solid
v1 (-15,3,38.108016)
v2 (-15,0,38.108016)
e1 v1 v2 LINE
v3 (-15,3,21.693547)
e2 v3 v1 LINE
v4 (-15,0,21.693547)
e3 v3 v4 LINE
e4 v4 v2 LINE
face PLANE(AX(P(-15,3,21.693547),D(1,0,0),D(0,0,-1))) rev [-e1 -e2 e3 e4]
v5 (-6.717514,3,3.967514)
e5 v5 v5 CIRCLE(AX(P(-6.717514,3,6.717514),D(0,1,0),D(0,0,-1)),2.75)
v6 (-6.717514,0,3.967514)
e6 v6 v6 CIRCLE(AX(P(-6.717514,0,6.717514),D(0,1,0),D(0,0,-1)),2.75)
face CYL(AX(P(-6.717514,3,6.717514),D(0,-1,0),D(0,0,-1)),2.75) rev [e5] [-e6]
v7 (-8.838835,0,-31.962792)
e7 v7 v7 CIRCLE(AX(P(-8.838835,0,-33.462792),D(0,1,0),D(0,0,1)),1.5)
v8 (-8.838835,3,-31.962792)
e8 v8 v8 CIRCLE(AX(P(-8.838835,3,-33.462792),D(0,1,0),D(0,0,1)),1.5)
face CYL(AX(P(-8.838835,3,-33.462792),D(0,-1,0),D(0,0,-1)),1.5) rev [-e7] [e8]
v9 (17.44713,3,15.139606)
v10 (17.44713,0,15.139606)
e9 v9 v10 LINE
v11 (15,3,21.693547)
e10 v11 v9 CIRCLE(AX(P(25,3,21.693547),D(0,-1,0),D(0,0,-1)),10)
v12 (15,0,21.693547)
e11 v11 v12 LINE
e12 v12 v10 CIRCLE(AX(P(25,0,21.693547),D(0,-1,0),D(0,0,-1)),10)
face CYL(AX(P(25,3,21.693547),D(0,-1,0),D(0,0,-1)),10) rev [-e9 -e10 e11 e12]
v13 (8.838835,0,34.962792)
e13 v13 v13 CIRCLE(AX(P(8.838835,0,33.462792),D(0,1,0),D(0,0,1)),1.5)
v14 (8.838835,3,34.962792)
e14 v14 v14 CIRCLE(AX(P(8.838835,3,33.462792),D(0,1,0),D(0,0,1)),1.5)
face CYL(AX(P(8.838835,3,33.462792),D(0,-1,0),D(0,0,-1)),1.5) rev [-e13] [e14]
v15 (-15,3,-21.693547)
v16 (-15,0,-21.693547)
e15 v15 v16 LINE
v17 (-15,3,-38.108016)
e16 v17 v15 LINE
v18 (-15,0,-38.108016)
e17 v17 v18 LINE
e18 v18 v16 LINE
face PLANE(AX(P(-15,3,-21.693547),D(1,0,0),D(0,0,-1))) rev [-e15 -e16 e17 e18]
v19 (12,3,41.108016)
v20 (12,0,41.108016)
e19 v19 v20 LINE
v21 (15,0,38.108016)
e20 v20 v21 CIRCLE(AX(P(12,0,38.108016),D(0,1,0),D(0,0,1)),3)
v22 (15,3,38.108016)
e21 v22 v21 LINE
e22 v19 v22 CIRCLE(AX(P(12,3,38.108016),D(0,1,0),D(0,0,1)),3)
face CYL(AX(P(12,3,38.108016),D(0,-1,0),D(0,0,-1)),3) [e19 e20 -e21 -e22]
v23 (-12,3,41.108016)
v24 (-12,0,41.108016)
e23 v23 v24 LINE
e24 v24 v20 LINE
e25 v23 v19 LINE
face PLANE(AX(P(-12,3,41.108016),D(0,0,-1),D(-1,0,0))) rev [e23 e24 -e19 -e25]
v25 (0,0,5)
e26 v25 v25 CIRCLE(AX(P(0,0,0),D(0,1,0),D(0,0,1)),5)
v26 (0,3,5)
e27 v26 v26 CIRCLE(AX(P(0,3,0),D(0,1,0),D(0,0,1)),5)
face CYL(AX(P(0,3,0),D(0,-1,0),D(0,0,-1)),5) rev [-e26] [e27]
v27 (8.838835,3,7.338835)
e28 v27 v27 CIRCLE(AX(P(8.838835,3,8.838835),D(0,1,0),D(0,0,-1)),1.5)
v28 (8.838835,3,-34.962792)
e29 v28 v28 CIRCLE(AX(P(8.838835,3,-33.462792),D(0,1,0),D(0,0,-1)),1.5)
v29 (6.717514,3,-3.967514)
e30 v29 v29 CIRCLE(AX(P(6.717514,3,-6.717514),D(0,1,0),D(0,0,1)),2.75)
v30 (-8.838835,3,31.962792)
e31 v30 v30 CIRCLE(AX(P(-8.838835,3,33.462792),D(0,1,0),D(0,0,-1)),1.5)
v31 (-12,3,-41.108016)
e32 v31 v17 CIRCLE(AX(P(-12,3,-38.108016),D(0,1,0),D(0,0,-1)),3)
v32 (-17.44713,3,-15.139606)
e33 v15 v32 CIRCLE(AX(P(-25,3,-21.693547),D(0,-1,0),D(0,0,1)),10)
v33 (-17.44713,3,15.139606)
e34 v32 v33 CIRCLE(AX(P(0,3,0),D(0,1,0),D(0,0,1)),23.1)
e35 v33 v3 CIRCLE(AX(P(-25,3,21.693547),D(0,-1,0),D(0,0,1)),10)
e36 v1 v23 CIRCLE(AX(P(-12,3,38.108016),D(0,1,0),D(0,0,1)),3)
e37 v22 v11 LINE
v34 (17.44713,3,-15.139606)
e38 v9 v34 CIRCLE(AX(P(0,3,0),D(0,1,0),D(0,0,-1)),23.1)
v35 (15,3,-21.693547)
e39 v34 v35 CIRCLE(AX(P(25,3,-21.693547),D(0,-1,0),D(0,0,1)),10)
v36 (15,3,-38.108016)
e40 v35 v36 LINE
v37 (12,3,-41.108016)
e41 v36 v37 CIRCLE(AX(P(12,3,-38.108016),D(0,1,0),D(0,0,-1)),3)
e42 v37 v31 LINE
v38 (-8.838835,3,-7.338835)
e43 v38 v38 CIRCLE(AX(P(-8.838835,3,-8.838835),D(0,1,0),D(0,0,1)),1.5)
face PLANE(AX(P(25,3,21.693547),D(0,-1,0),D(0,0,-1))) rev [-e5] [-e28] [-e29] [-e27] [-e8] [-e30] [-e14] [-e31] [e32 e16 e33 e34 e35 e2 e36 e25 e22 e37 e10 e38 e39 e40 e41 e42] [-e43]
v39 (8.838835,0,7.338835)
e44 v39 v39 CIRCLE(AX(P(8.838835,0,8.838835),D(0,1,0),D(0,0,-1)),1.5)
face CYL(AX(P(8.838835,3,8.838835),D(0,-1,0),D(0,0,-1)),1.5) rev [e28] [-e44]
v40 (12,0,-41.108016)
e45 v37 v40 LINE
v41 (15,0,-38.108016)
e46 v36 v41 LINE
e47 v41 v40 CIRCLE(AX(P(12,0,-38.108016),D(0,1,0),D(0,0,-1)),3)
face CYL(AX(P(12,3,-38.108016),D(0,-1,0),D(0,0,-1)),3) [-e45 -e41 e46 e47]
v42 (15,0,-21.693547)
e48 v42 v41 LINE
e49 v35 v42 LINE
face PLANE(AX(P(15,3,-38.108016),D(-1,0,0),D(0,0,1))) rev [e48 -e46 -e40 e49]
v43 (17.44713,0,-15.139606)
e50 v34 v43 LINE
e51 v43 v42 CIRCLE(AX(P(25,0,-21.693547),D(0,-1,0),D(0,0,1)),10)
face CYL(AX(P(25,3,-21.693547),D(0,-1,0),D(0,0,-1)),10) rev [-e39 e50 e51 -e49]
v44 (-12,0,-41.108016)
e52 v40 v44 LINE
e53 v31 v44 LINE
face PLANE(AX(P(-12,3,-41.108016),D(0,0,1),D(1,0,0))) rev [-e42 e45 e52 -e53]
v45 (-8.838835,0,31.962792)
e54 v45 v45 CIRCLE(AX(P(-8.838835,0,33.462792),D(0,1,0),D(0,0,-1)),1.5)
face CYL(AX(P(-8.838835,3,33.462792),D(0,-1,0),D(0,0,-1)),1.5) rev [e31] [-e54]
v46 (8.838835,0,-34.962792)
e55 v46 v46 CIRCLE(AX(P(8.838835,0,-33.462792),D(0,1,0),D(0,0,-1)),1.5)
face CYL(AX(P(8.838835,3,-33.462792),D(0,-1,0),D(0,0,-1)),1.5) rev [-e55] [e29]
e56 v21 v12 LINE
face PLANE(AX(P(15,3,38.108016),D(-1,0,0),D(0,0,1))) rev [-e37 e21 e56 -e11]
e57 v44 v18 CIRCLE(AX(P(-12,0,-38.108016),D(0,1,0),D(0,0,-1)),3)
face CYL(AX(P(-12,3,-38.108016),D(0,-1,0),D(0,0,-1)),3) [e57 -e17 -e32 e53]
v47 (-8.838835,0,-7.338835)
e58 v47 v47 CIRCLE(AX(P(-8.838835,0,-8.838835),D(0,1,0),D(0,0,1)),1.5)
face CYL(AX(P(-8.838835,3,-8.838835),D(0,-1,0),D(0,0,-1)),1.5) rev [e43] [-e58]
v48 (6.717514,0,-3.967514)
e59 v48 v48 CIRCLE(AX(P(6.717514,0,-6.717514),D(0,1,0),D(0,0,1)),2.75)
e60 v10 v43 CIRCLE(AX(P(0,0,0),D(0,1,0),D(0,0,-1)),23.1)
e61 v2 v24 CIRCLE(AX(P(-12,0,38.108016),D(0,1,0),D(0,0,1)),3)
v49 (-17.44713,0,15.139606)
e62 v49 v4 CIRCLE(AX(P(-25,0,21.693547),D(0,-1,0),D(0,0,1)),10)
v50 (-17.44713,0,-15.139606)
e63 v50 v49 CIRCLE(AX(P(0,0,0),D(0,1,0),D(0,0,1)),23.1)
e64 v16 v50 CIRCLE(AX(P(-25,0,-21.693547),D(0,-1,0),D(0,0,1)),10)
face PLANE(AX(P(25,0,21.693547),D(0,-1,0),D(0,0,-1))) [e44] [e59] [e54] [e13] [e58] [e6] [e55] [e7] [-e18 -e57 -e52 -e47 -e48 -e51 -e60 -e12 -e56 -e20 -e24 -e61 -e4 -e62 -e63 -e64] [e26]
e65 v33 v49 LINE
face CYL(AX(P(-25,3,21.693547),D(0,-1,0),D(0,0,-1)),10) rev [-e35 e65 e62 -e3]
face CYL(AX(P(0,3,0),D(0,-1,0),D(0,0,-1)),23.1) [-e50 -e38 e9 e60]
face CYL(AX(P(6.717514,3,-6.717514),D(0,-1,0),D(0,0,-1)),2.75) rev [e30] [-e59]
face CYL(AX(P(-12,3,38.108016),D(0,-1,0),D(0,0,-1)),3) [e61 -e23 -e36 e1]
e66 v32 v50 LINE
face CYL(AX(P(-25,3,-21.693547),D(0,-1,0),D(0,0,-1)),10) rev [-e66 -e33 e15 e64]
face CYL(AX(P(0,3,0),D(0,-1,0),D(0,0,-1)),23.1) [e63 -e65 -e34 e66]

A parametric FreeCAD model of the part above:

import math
import FreeCAD as App
import Part
import Sketcher
from FreeCAD import Vector
Q = App.Units.Quantity

doc = App.newDocument("Part")
body = doc.addObject("PartDesign::Body", "Body")

# Sketch on XZ plane
sketch1 = body.newObject("Sketcher::SketchObject", "Sketch")
sketch1.AttachmentSupport = (doc.getObject("XZ_Plane"), [""])
sketch1.MapMode = "FlatFace"
sketch1.addGeometry(Part.LineSegment(Vector(-15, -38.1, 0), Vector(-15, -21.7, 0)), False)
sketch1.addGeometry(Part.ArcOfCircle(Part.Circle(Vector(-25, -21.7, 0), Vector(0, 0, 1), 10), math.radians(0), math.radians(41)), False)
sketch1.addGeometry(Part.ArcOfCircle(Part.Circle(Vector(0, 0, 0), Vector(0, 0, 1), 23.1), math.radians(139), math.radians(221)), False)
sketch1.addGeometry(Part.ArcOfCircle(Part.Circle(Vector(-25, 21.7, 0), Vector(0, 0, 1), 10), math.radians(-41), math.radians(0)), False)
sketch1.addGeometry(Part.LineSegment(Vector(-15, 21.7, 0), Vector(-15, 38.1, 0)), False)
sketch1.addGeometry(Part.ArcOfCircle(Part.Circle(Vector(-12, 38.1, 0), Vector(0, 0, 1), 3), math.radians(90), math.radians(180)), False)
sketch1.addGeometry(Part.LineSegment(Vector(-12, 41.1, 0), Vector(12, 41.1, 0)), False)
sketch1.addGeometry(Part.ArcOfCircle(Part.Circle(Vector(12, 38.1, 0), Vector(0, 0, 1), 3), math.radians(0), math.radians(90)), False)
sketch1.addGeometry(Part.LineSegment(Vector(15, 38.1, 0), Vector(15, 21.7, 0)), False)
sketch1.addGeometry(Part.ArcOfCircle(Part.Circle(Vector(25, 21.7, 0), Vector(0, 0, 1), 10), math.radians(180), math.radians(221)), False)
sketch1.addGeometry(Part.ArcOfCircle(Part.Circle(Vector(0, 0, 0), Vector(0, 0, 1), 23.1), math.radians(-41), math.radians(41)), False)
sketch1.addGeometry(Part.ArcOfCircle(Part.Circle(Vector(25, -21.7, 0), Vector(0, 0, 1), 10), math.radians(139), math.radians(180)), False)
sketch1.addGeometry(Part.LineSegment(Vector(15, -21.7, 0), Vector(15, -38.1, 0)), False)
sketch1.addGeometry(Part.ArcOfCircle(Part.Circle(Vector(12, -38.1, 0), Vector(0, 0, 1), 3), math.radians(-90), math.radians(0)), False)
sketch1.addGeometry(Part.LineSegment(Vector(12, -41.1, 0), Vector(-12, -41.1, 0)), False)
sketch1.addGeometry(Part.ArcOfCircle(Part.Circle(Vector(-12, -38.1, 0), Vector(0, 0, 1), 3), math.radians(180), math.radians(270)), False)
sketch1.addGeometry(Part.Circle(Vector(8.8, 33.5, 0), Vector(0, 0, 1), 1.5), False)
sketch1.addGeometry(Part.Circle(Vector(8.8, 8.8, 0), Vector(0, 0, 1), 1.5), False)
sketch1.addGeometry(Part.Circle(Vector(-8.8, 33.5, 0), Vector(0, 0, 1), 1.5), False)
sketch1.addGeometry(Part.Circle(Vector(-6.7, 6.7, 0), Vector(0, 0, 1), 2.8), False)
sketch1.addGeometry(Part.Circle(Vector(6.7, -6.7, 0), Vector(0, 0, 1), 2.8), False)
sketch1.addGeometry(Part.Circle(Vector(8.8, -33.5, 0), Vector(0, 0, 1), 1.5), False)
sketch1.addGeometry(Part.Circle(Vector(0, 0, 0), Vector(0, 0, 1), 5), False)
sketch1.addGeometry(Part.Circle(Vector(-8.8, -8.8, 0), Vector(0, 0, 1), 1.5), False)
sketch1.addGeometry(Part.Circle(Vector(-8.8, -33.5, 0), Vector(0, 0, 1), 1.5), False)
sketch1.addConstraint(Sketcher.Constraint("Tangent", 0, 2, 1, 1))
sketch1.addConstraint(Sketcher.Constraint("Tangent", 1, 2, 2, 2))
sketch1.addConstraint(Sketcher.Constraint("Tangent", 2, 1, 3, 1))
sketch1.addConstraint(Sketcher.Constraint("Tangent", 3, 2, 4, 1))
sketch1.addConstraint(Sketcher.Constraint("Tangent", 4, 2, 5, 2))
sketch1.addConstraint(Sketcher.Constraint("Tangent", 5, 1, 6, 1))
sketch1.addConstraint(Sketcher.Constraint("Tangent", 6, 2, 7, 2))
sketch1.addConstraint(Sketcher.Constraint("Tangent", 7, 1, 8, 1))
sketch1.addConstraint(Sketcher.Constraint("Tangent", 8, 2, 9, 1))
sketch1.addConstraint(Sketcher.Constraint("Tangent", 9, 2, 10, 2))
sketch1.addConstraint(Sketcher.Constraint("Tangent", 10, 1, 11, 1))
sketch1.addConstraint(Sketcher.Constraint("Tangent", 11, 2, 12, 1))
sketch1.addConstraint(Sketcher.Constraint("Tangent", 12, 2, 13, 2))
sketch1.addConstraint(Sketcher.Constraint("Tangent", 13, 1, 14, 1))
sketch1.addConstraint(Sketcher.Constraint("Tangent", 14, 2, 15, 2))
sketch1.addConstraint(Sketcher.Constraint("Tangent", 15, 1, 0, 1))
sketch1.addConstraint(Sketcher.Constraint("Vertical", 0))
sketch1.addConstraint(Sketcher.Constraint("Vertical", 4))
sketch1.addConstraint(Sketcher.Constraint("Horizontal", 6))
sketch1.addConstraint(Sketcher.Constraint("Vertical", 8))
sketch1.addConstraint(Sketcher.Constraint("Vertical", 12))
sketch1.addConstraint(Sketcher.Constraint("Horizontal", 14))
sketch1.addConstraint(Sketcher.Constraint("Coincident", 2, 3, -1, 1))
sketch1.addConstraint(Sketcher.Constraint("Coincident", 10, 3, -1, 1))
sketch1.addConstraint(Sketcher.Constraint("Coincident", 22, 3, -1, 1))
sketch1.addConstraint(Sketcher.Constraint("Equal", 1, 3))
sketch1.addConstraint(Sketcher.Constraint("Equal", 5, 7))
sketch1.addConstraint(Sketcher.Constraint("Equal", 3, 9))
sketch1.addConstraint(Sketcher.Constraint("Equal", 2, 10))
sketch1.addConstraint(Sketcher.Constraint("Equal", 9, 11))
sketch1.addConstraint(Sketcher.Constraint("Equal", 7, 13))
sketch1.addConstraint(Sketcher.Constraint("Equal", 13, 15))
sketch1.addConstraint(Sketcher.Constraint("Equal", 16, 17))
sketch1.addConstraint(Sketcher.Constraint("Equal", 17, 18))
sketch1.addConstraint(Sketcher.Constraint("Equal", 19, 20))
sketch1.addConstraint(Sketcher.Constraint("Equal", 18, 21))
sketch1.addConstraint(Sketcher.Constraint("Equal", 21, 23))
sketch1.addConstraint(Sketcher.Constraint("Equal", 23, 24))
sketch1.addConstraint(Sketcher.Constraint("Symmetric", 5, 3, 13, 3, -1, 1))
sketch1.addConstraint(Sketcher.Constraint("Symmetric", 19, 3, 20, 3, -1, 1))
sketch1.addConstraint(Sketcher.Constraint("Symmetric", 18, 3, 21, 3, -1, 1))
sketch1.addConstraint(Sketcher.Constraint("Symmetric", 17, 3, 23, 3, -1, 1))
sketch1.addConstraint(Sketcher.Constraint("Symmetric", 16, 3, 24, 3, -1, 1))
sketch1.addConstraint(Sketcher.Constraint("Symmetric", 16, 3, 18, 3, -2))
sketch1.addConstraint(Sketcher.Constraint("Horizontal", 3, 3, 9, 3))
sketch1.addConstraint(Sketcher.Constraint("Horizontal", 1, 3, 11, 3))
sketch1.addConstraint(Sketcher.Constraint("Vertical", 16, 3, 17, 3))
sketch1.addConstraint(Sketcher.Constraint("Diameter", 16, Q("3 mm")))
sketch1.addConstraint(Sketcher.Constraint("Diameter", 22, Q("10 mm")))
sketch1.addConstraint(Sketcher.Constraint("Radius", 1, Q("10 mm")))
sketch1.addConstraint(Sketcher.Constraint("Radius", 5, Q("3 mm")))
sketch1.addConstraint(Sketcher.Constraint("Diameter", 19, Q("5.5 mm")))
sketch1.addConstraint(Sketcher.Constraint("Radius", 2, Q("23.1 mm")))
sketch1.addConstraint(Sketcher.Constraint("DistanceX", 6, 1, 6, 2, Q("24 mm")))
sketch1.addConstraint(Sketcher.Constraint("DistanceY", 0, 1, 0, 2, Q("16.414469 mm")))
sketch1.addConstraint(Sketcher.Constraint("DistanceY", 17, 3, 7, 3, Q("29.269182 mm")))
sketch1.addConstraint(Sketcher.Constraint("DistanceX", 18, 3, 16, 3, Q("17.67767 mm")))
sketch1.addConstraint(Sketcher.Constraint("DistanceX", 19, 3, 17, 3, Q("15.556349 mm")))
sketch1.addConstraint(Sketcher.Constraint("DistanceY", 19, 3, 17, 3, Q("2.12132 mm")))
sketch1.addConstraint(Sketcher.Constraint("DistanceY", 19, 3, 18, 3, Q("26.745278 mm")))
pad1 = body.newObject("PartDesign::Pad", "Pad")
pad1.Profile = sketch1
pad1.Length = 3
pad1.Reversed = True

doc.recompute()
